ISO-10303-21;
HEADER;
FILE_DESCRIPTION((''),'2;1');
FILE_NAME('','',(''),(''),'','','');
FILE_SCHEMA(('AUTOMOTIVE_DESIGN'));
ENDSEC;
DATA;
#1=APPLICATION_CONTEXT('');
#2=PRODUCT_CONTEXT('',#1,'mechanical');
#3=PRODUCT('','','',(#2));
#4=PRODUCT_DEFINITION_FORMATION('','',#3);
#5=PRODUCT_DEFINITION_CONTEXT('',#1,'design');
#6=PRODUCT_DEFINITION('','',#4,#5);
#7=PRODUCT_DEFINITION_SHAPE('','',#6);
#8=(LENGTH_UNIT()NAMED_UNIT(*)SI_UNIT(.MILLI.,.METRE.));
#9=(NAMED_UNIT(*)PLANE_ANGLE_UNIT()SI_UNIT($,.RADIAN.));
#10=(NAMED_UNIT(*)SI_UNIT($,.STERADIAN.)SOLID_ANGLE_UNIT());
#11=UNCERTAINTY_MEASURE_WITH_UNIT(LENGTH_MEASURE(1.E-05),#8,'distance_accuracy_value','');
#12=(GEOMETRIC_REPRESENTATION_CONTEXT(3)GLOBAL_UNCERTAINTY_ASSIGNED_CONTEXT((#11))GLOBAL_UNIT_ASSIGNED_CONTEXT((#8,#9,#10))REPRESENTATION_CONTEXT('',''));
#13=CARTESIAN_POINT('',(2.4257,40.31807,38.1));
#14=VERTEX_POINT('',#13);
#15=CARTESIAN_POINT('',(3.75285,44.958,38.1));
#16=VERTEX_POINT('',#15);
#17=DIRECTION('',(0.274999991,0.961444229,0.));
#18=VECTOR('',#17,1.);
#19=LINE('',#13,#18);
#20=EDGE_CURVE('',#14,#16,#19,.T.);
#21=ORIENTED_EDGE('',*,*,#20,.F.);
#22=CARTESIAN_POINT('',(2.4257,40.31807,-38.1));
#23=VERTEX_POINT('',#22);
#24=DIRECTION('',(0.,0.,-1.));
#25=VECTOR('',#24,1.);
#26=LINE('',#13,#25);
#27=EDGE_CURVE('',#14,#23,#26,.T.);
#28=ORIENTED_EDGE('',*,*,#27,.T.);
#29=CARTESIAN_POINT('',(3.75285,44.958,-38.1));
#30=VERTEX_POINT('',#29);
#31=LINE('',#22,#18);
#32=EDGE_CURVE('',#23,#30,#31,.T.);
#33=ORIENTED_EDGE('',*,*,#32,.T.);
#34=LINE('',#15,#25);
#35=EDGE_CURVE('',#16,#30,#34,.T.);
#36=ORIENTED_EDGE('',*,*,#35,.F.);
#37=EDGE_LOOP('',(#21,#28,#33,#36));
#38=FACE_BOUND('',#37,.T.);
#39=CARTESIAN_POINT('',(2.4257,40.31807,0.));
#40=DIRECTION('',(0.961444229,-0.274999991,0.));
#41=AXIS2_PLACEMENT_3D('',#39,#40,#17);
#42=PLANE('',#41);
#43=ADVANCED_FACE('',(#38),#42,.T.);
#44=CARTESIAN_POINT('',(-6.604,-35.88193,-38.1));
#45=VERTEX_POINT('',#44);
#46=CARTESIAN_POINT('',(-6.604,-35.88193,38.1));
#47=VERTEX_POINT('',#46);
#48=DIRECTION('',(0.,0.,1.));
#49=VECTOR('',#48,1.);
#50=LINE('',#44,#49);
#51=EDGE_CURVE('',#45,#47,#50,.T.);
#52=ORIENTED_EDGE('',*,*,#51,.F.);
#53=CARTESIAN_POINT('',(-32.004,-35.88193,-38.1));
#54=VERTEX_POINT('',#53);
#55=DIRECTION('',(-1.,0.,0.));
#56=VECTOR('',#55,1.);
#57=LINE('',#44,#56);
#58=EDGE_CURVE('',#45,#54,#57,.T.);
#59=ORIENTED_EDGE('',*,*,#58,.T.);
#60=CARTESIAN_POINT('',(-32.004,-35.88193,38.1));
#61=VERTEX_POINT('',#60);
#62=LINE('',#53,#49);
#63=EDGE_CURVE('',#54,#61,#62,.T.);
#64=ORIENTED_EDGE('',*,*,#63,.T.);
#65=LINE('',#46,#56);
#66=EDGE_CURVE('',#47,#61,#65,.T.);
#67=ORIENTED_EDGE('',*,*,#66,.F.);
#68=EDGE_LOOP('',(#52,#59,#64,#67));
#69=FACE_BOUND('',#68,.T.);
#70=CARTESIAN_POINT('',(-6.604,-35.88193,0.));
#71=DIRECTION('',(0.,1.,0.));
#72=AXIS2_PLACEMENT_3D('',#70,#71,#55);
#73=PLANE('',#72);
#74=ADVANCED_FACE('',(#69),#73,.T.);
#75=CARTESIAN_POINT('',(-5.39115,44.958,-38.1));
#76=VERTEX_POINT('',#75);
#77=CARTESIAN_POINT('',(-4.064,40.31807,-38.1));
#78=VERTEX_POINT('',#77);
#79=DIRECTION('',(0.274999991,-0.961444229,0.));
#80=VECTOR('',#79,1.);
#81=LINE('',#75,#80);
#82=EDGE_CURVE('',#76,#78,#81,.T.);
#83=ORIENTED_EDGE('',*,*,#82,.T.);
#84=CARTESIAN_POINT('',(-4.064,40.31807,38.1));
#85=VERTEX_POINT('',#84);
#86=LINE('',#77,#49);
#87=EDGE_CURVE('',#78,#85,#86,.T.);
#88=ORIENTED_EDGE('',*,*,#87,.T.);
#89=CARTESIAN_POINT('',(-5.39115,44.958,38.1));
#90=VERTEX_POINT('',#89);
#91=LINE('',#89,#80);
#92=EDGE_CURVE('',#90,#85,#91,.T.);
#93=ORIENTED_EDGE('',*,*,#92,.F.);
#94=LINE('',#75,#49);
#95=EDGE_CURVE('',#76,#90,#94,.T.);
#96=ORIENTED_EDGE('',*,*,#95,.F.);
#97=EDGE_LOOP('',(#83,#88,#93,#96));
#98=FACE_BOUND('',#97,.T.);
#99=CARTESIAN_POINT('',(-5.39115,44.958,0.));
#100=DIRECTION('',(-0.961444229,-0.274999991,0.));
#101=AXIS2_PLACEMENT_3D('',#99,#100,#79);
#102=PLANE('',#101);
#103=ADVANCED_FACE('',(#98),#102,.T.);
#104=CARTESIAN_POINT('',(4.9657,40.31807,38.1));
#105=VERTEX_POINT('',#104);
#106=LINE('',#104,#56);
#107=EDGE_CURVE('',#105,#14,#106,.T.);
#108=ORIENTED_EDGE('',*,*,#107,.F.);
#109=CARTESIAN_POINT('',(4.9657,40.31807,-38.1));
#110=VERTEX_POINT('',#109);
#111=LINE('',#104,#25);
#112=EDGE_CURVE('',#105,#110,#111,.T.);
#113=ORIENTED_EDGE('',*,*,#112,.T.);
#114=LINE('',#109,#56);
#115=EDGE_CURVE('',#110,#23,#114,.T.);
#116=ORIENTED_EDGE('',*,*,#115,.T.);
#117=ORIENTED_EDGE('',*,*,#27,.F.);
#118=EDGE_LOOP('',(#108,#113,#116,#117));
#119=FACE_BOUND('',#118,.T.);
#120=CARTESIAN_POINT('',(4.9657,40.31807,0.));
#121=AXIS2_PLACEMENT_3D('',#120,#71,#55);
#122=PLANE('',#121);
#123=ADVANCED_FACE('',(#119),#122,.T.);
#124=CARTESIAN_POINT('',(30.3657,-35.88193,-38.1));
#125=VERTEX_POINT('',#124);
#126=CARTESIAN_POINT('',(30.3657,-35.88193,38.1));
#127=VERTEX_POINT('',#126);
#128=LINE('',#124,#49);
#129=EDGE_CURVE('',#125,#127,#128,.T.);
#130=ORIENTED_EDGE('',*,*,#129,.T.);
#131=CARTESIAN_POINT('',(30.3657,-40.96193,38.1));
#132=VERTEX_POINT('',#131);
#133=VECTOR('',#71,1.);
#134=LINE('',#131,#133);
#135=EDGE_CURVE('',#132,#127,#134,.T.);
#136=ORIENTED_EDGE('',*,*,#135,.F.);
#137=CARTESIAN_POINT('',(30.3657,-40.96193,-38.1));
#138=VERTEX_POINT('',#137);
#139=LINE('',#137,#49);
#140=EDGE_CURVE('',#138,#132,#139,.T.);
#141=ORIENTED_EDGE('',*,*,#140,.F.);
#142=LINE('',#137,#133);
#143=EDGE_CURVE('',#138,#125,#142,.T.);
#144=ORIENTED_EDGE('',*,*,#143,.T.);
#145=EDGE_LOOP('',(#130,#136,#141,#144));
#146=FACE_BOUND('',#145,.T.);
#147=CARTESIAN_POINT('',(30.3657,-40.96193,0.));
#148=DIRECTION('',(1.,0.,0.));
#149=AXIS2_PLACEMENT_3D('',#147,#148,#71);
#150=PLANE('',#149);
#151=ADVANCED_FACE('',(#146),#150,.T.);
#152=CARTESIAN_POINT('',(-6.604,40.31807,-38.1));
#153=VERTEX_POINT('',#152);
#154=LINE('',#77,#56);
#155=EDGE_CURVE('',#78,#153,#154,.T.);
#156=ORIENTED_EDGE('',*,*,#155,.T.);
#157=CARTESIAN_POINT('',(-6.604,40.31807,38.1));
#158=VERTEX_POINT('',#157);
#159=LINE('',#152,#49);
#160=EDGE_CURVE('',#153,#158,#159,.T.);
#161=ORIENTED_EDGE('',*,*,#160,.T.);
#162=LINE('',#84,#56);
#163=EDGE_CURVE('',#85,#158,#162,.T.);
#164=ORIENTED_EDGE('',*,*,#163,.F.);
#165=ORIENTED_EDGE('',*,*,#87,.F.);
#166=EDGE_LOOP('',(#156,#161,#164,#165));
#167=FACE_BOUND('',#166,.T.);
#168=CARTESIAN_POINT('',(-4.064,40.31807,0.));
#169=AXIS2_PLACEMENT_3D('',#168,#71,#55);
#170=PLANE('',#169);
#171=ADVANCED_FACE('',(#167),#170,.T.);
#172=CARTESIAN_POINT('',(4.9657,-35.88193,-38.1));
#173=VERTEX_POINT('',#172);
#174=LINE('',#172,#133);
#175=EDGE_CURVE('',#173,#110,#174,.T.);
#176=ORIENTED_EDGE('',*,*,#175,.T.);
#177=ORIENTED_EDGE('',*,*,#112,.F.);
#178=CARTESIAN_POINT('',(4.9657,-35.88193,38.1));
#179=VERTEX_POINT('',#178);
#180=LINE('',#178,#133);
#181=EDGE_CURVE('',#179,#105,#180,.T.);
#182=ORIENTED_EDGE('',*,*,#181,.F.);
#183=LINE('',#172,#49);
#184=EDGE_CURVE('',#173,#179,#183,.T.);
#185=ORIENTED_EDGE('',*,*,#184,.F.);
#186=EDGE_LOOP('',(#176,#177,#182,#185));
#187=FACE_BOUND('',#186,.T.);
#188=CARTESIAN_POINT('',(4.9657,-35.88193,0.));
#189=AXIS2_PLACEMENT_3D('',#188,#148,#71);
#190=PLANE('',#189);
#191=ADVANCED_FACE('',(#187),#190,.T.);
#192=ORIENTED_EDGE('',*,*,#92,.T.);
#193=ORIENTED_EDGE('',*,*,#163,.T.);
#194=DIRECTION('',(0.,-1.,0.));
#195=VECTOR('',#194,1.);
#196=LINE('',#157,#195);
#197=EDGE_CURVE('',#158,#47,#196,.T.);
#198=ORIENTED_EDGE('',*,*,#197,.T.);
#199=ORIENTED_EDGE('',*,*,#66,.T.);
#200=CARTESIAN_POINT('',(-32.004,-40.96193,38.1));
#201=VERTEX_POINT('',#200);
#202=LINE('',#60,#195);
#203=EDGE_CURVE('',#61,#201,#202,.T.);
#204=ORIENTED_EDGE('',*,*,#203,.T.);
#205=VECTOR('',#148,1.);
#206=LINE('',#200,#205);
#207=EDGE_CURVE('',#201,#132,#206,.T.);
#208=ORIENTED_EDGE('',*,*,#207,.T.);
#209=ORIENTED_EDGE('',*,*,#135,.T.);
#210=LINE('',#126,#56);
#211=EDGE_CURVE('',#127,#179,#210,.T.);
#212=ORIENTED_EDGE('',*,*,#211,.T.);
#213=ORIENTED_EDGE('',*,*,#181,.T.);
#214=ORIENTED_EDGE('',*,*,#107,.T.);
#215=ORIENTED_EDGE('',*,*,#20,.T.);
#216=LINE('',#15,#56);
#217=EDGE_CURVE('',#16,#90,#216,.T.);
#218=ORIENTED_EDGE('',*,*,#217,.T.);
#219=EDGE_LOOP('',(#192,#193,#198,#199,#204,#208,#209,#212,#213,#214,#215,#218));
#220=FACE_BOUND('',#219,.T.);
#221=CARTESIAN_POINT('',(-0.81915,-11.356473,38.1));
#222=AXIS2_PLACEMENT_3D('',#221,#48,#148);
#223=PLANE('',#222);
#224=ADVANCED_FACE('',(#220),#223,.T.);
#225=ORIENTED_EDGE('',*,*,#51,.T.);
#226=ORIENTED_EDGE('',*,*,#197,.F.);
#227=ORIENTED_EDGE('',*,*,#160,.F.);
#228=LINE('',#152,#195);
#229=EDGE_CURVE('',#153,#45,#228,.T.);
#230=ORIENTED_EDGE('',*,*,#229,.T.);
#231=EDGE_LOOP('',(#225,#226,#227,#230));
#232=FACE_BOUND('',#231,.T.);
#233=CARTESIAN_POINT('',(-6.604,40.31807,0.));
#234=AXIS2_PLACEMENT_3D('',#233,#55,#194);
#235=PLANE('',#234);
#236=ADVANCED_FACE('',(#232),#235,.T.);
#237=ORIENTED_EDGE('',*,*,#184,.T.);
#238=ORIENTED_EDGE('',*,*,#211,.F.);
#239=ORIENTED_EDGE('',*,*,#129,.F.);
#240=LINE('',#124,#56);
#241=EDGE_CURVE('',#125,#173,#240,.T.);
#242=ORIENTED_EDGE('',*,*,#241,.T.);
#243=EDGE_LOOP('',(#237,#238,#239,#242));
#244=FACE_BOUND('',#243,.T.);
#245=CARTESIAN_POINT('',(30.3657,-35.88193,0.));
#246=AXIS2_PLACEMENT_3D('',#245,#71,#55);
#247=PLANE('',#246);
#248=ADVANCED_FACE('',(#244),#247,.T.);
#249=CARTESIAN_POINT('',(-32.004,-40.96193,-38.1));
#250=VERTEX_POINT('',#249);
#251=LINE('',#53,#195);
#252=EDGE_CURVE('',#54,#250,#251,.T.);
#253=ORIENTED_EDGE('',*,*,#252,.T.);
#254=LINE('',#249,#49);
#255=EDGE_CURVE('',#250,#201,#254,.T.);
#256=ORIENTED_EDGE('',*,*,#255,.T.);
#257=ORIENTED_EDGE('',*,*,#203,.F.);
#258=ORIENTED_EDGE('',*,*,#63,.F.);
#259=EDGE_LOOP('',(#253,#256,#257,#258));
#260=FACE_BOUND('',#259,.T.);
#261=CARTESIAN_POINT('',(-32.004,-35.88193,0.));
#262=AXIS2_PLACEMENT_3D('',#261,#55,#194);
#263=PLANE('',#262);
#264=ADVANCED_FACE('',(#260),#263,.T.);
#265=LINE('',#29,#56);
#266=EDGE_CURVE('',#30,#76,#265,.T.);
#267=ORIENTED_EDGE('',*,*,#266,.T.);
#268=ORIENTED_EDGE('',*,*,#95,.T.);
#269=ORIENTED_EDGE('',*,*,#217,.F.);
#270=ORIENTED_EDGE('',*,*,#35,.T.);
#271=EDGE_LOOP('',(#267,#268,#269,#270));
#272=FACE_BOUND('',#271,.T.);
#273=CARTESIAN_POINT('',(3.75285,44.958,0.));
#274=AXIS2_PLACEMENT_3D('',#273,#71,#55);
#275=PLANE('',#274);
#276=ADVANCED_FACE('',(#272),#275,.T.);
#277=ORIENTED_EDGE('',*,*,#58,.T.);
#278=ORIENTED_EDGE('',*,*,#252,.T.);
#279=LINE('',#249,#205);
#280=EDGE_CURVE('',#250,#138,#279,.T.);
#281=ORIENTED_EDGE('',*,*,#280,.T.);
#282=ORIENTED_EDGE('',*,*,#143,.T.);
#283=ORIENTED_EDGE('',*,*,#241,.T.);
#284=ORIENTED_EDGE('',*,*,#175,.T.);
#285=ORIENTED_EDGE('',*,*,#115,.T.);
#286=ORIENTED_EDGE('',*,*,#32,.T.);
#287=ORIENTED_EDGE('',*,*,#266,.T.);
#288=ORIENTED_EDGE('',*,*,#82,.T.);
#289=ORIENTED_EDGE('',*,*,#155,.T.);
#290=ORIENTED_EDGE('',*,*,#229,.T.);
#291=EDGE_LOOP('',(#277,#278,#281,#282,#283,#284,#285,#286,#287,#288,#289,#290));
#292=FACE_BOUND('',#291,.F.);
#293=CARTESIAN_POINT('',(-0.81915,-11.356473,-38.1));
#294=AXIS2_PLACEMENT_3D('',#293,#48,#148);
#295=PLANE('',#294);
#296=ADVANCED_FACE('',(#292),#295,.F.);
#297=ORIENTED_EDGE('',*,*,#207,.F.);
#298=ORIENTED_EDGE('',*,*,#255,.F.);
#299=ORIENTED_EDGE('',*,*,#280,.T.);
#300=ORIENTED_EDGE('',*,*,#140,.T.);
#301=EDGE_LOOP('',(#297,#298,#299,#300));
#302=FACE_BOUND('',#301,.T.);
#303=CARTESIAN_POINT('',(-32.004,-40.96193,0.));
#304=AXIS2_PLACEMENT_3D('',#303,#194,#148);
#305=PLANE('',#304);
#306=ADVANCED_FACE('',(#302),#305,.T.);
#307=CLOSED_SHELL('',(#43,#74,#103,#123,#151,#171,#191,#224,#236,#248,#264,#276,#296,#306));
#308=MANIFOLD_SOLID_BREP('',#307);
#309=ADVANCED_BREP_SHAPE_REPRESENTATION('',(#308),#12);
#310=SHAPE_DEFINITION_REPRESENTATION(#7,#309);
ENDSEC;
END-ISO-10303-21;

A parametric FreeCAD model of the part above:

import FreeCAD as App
import Part
import Sketcher
Q = App.Units.Quantity


def add_polygon(sketch, points):
    """Adds a closed chain of lines whose ends are joined by coincident constraints."""
    first, n = sketch.GeometryCount, len(points)
    for a, b in zip(points, points[1:] + points[:1]):
        sketch.addGeometry(Part.LineSegment(App.Vector(*a, 0), App.Vector(*b, 0)), False)
    for i in range(n):
        sketch.addConstraint(Sketcher.Constraint("Coincident", first + i, 2, first + (i + 1) % n, 1))

doc = App.newDocument("Part")
body = doc.addObject("PartDesign::Body", "Body")

# Sketch on XY plane
sketch1 = doc.addObject("Sketcher::SketchObject", "Sketch")
body.addObject(sketch1)
sketch1.AttachmentSupport = (doc.XY_Plane, [""])
sketch1.MapMode = "FlatFace"
add_polygon(sketch1, [(7.8, 0), (-1.3, 0), (0, -4.6), (-2.5, -4.6), (-2.5, -80.8), (-27.9, -80.8), (-27.9, -85.9), (34.4, -85.9), (34.4, -80.8), (9, -80.8), (9, -4.6), (6.5, -4.6)])  # lines 0-11
sketch1.addConstraint(Sketcher.Constraint("Horizontal", 0))
sketch1.addConstraint(Sketcher.Constraint("Horizontal", 2))
sketch1.addConstraint(Sketcher.Constraint("Vertical", 3))
sketch1.addConstraint(Sketcher.Constraint("Horizontal", 4))
sketch1.addConstraint(Sketcher.Constraint("Vertical", 5))
sketch1.addConstraint(Sketcher.Constraint("Horizontal", 6))
sketch1.addConstraint(Sketcher.Constraint("Vertical", 7))
sketch1.addConstraint(Sketcher.Constraint("Horizontal", 8))
sketch1.addConstraint(Sketcher.Constraint("Vertical", 9))
sketch1.addConstraint(Sketcher.Constraint("Horizontal", 10))
sketch1.addConstraint(Sketcher.Constraint("PointOnObject", 0, 2, -1))
sketch1.addConstraint(Sketcher.Constraint("PointOnObject", 1, 2, -2))
sketch1.addConstraint(Sketcher.Constraint("Horizontal", 4, 2, 7, 2))
sketch1.addConstraint(Sketcher.Constraint("Horizontal", 2, 2, 9, 2))
sketch1.addConstraint(Sketcher.Constraint("Equal", 4, 8))
sketch1.addConstraint(Sketcher.Constraint("Equal", 2, 10))
sketch1.addConstraint(Sketcher.Constraint("Equal", 1, 11))
sketch1.addConstraint(Sketcher.Constraint("DistanceX", 4, 2, 4, 1, Q("1 in")))
sketch1.addConstraint(Sketcher.Constraint("DistanceY", 3, 2, 3, 1, Q("3 in")))
sketch1.addConstraint(Sketcher.Constraint("DistanceX", 2, 2, 2, 1, Q("0.1 in")))
sketch1.addConstraint(Sketcher.Constraint("DistanceY", 5, 2, 5, 1, Q("0.2 in")))
sketch1.addConstraint(Sketcher.Constraint("DistanceX", 0, 2, 0, 1, Q("0.36 in")))
sketch1.addConstraint(Sketcher.Constraint("Distance", 1, Q("0.19 in")))
sketch1.addConstraint(Sketcher.Constraint("DistanceX", 6, 1, 6, 2, Q("2.4555 in")))
pad1 = doc.addObject("PartDesign::Pad", "Pad")
body.addObject(pad1)
pad1.Profile = sketch1
pad1.Length = Q("3 in")
pad1.Midplane = True
body2 = doc.addObject("PartDesign::Body", "Body001")
doc.recompute()

body.Placement = App.Placement(App.Vector(-4.064, 44.958, 0), App.Rotation(App.Vector(0, 0, 1), 0))
boolean = doc.addObject("PartDesign::Boolean", "Boolean")
body2.addObject(boolean)
boolean.Type = "Fuse"
boolean.addObjects([body])

doc.recompute()
